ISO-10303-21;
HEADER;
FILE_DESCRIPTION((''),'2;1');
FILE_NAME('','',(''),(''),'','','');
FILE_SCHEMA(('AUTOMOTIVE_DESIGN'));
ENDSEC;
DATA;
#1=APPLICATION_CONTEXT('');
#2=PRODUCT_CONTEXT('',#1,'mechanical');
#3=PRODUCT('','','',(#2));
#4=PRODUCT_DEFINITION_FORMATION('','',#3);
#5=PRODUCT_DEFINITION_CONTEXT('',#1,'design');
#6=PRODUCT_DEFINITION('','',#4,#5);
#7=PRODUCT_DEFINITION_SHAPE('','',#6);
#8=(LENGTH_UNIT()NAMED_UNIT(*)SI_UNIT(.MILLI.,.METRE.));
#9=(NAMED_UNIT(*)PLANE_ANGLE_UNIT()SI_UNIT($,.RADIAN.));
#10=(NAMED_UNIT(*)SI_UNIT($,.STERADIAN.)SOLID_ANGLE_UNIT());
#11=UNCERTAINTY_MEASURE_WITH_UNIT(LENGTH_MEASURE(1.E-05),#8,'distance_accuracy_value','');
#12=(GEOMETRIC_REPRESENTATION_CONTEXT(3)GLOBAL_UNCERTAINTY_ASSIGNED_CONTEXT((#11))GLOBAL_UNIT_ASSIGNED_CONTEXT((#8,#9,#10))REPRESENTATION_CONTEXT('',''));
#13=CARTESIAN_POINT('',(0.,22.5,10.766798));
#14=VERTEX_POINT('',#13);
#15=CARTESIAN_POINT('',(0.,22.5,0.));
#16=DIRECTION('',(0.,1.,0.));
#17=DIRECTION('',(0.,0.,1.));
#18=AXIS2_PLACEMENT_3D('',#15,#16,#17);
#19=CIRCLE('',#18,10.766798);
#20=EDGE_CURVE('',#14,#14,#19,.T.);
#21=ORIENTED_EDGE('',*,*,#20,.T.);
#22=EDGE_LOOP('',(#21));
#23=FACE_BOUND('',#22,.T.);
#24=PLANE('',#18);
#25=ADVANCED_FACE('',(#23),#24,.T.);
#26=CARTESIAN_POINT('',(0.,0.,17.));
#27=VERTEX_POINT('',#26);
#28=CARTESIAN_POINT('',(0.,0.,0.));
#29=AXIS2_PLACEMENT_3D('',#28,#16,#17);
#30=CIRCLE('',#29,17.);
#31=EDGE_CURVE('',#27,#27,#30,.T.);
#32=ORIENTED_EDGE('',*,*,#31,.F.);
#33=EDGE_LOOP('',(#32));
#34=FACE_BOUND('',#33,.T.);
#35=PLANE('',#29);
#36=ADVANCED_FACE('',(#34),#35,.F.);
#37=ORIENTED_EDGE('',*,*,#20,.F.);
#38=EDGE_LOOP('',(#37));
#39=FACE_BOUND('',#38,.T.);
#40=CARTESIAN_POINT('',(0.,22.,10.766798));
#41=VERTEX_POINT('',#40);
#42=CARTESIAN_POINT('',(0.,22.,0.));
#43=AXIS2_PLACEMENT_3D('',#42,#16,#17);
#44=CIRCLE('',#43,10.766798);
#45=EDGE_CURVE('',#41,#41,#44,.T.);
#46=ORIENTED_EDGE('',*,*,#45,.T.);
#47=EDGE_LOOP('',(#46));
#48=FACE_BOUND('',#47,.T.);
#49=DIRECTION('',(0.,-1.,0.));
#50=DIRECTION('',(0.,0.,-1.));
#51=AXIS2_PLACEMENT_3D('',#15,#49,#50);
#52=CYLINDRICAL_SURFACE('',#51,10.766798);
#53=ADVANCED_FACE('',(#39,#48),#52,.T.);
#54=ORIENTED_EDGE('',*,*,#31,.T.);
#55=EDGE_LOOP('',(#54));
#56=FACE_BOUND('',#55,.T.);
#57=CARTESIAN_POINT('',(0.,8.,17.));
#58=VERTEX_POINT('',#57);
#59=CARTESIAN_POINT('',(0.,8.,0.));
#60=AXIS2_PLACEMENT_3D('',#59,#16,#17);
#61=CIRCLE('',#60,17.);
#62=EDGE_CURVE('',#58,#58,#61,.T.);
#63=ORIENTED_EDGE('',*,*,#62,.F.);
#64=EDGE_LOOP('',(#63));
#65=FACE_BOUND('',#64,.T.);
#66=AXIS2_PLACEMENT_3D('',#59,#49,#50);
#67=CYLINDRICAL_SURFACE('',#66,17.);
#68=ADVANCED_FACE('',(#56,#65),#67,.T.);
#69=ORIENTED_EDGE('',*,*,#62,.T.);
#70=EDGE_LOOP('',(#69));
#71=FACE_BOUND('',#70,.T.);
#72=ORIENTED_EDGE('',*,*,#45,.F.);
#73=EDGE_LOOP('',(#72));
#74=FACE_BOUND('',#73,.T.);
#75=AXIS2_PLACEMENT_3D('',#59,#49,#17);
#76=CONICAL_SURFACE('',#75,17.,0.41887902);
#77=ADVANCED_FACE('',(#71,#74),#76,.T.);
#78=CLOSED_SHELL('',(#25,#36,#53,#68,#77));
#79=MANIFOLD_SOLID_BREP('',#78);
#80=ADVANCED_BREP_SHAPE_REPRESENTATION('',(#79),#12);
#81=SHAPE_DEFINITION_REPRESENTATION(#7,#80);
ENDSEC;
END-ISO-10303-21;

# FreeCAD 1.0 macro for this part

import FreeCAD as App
import Part
import Sketcher
Q = App.Units.Quantity

doc = App.newDocument("Part")
body = doc.addObject("PartDesign::Body", "Body")

# Sketch on XZ plane
sketch1 = body.newObject("Sketcher::SketchObject", "Sketch")
sketch1.AttachmentSupport = (doc.getObject("XZ_Plane"), [""])
sketch1.MapMode = "FlatFace"
sketch1.addGeometry(Part.Circle(App.Vector(0, 0, 0), App.Vector(0, 0, 1), 17), False)
sketch1.addConstraint([
    Sketcher.Constraint("Coincident", 0, 3, -1, 1),
    Sketcher.Constraint("Diameter", 0, Q("34 mm")),
])
pad1 = body.newObject("PartDesign::Pad", "Pad")
pad1.Profile = sketch1
pad1.Length = 8
pad1.Reversed = True

# Sketch on XZ plane
sketch2 = body.newObject("Sketcher::SketchObject", "Sketch001")
sketch2.AttachmentSupport = (doc.getObject("XZ_Plane"), [""])
sketch2.MapMode = "FlatFace"
sketch2.AttachmentOffset = App.Placement(App.Vector(0, 0, -8), App.Rotation())
sketch2.addGeometry(Part.Circle(App.Vector(0, 0, 0), App.Vector(0, 0, 1), 17), False)
sketch2.addConstraint([
    Sketcher.Constraint("Coincident", 0, 3, -1, 1),
    Sketcher.Constraint("Diameter", 0, Q("34 mm")),
])
pad2 = body.newObject("PartDesign::Pad", "Pad001")
pad2.Profile = sketch2
pad2.Length = 14
pad2.Reversed = True
pad2.TaperAngle = -24

# Sketch on XZ plane
sketch3 = body.newObject("Sketcher::SketchObject", "Sketch002")
sketch3.AttachmentSupport = (doc.getObject("XZ_Plane"), [""])
sketch3.MapMode = "FlatFace"
sketch3.AttachmentOffset = App.Placement(App.Vector(0, 0, -22), App.Rotation())
sketch3.addGeometry(Part.Circle(App.Vector(0, 0, 0), App.Vector(0, 0, 1), 11), False)
sketch3.addConstraint([
    Sketcher.Constraint("Coincident", 0, 3, -1, 1),
    Sketcher.Constraint("Diameter", 0, Q("21.533597 mm")),
])
pad3 = body.newObject("PartDesign::Pad", "Pad002")
pad3.Profile = sketch3
pad3.Length = 0.5
pad3.Reversed = True

doc.recompute()
